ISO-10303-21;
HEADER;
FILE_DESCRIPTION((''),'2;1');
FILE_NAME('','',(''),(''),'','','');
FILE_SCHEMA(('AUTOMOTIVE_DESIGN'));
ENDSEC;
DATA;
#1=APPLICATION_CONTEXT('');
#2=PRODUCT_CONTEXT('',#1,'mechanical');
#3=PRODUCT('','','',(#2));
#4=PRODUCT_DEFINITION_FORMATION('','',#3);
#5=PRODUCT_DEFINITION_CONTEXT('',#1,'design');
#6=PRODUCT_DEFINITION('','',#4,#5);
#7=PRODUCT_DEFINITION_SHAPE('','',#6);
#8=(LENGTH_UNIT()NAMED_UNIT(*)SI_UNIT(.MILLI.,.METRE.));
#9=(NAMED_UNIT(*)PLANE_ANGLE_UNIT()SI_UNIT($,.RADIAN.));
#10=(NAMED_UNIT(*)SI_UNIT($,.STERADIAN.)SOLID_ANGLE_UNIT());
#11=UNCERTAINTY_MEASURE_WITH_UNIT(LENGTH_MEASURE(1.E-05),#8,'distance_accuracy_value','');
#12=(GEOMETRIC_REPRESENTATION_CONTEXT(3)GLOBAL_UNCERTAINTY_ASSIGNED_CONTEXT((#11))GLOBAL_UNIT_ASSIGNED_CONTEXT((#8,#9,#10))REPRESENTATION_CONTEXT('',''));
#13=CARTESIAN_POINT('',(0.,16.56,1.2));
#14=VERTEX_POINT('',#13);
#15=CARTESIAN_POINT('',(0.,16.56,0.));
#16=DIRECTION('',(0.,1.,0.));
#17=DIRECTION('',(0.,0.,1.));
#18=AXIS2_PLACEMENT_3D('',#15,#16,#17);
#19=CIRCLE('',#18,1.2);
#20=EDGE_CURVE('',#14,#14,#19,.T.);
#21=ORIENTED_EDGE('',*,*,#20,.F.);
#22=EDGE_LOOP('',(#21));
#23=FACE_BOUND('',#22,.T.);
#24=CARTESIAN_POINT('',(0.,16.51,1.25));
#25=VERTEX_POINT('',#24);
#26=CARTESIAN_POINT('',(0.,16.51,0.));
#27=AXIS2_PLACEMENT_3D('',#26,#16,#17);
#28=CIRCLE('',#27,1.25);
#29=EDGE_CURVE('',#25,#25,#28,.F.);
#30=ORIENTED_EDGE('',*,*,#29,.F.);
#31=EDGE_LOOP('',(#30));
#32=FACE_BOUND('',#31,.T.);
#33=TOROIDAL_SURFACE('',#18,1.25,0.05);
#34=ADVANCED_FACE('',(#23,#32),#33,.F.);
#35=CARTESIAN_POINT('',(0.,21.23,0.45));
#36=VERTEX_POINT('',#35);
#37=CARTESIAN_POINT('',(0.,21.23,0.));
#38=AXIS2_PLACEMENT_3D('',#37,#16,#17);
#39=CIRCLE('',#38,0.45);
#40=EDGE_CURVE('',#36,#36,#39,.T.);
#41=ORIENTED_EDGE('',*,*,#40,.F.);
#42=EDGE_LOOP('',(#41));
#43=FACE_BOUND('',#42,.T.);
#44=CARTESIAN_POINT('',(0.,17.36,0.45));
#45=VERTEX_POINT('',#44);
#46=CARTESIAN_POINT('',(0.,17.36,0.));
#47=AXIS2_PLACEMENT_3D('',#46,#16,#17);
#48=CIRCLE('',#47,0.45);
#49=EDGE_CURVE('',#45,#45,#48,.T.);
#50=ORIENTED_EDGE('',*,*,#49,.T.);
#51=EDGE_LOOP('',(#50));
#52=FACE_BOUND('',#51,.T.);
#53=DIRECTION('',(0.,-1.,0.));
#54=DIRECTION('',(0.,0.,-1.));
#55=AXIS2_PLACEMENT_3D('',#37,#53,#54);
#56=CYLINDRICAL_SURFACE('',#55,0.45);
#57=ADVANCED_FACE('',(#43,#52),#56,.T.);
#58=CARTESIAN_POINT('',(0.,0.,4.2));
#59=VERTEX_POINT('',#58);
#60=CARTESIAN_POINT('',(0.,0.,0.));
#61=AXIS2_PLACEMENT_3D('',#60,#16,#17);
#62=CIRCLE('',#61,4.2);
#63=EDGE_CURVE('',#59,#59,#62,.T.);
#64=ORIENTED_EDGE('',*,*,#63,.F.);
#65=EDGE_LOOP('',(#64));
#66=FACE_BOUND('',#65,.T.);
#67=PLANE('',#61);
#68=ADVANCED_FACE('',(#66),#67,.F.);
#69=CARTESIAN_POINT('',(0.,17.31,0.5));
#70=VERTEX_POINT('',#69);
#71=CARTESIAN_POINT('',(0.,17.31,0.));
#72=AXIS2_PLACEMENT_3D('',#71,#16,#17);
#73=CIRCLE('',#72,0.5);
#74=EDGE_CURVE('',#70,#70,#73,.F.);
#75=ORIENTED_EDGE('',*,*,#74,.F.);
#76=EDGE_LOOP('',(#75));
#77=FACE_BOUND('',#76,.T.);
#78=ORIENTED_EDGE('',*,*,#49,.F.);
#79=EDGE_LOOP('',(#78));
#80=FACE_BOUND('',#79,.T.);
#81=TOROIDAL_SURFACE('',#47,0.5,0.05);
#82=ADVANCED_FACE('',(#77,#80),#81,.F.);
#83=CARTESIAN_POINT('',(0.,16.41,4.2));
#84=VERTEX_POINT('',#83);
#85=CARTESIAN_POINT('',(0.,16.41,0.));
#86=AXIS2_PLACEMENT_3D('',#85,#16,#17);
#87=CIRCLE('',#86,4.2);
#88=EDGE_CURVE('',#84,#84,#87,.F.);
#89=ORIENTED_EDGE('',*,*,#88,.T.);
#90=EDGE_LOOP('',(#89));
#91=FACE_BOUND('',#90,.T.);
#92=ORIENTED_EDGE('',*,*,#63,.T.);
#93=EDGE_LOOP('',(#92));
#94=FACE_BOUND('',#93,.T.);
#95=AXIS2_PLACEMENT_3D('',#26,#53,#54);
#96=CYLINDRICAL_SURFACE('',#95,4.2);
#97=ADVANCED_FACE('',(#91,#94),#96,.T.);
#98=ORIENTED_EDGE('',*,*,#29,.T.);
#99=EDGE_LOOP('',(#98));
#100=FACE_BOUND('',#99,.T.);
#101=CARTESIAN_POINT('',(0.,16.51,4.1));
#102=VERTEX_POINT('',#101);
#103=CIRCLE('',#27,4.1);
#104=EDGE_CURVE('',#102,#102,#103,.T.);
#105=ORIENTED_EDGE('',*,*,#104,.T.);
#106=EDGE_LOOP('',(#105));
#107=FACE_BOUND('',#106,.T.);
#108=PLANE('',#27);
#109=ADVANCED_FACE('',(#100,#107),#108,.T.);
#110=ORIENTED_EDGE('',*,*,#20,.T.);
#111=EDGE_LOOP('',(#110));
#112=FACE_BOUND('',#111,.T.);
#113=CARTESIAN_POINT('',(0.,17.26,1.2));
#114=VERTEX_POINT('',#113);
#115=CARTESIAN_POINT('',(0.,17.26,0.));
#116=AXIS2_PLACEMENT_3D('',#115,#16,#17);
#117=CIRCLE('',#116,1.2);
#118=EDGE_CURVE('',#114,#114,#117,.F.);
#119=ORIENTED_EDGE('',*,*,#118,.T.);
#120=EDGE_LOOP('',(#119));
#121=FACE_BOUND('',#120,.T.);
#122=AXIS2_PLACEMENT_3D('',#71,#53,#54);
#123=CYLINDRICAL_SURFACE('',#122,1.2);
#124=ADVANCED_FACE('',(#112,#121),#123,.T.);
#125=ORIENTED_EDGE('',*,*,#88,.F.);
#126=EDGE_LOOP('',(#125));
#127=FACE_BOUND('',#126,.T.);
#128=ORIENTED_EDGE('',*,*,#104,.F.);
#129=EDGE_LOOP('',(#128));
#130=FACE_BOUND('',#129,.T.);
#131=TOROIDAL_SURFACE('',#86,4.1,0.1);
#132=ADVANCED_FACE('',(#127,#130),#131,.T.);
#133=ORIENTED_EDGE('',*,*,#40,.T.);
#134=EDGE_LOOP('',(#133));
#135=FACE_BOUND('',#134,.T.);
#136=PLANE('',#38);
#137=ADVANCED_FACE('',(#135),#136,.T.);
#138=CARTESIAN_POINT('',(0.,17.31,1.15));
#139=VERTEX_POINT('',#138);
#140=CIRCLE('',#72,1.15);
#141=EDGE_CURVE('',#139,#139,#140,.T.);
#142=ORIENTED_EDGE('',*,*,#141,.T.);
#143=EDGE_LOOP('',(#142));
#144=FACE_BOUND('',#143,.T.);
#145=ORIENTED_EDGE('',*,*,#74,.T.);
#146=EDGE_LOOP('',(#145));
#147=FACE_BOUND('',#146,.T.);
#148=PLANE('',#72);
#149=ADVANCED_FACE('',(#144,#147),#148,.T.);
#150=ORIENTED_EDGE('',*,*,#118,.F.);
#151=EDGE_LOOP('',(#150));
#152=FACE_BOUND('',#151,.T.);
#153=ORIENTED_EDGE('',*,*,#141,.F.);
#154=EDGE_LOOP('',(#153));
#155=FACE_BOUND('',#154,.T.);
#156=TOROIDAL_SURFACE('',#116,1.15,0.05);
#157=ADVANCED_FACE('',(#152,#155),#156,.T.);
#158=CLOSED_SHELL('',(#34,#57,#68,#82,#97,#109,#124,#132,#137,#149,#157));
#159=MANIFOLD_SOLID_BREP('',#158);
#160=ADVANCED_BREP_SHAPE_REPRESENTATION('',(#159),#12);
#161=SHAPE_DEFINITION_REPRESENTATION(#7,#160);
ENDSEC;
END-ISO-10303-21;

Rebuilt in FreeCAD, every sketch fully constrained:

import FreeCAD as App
import Part
import Sketcher
Q = App.Units.Quantity


def edges_at(feature, points):
    """Names of the edges that pass closest to the given points."""
    edges = feature.Shape.Edges
    near = lambda p: min(range(len(edges)), key=lambda i: edges[i].distToShape(Part.Vertex(*p))[0])
    return sorted({f"Edge{near(p) + 1}" for p in points})

doc = App.newDocument("Part")
params = doc.addObject("Spreadsheet::Sheet", "Params")
for row, (alias, value) in enumerate([
    ("sketch1_diameter", "8.4 mm"),
    ("pad1_length", "16.51 mm"),
    ("sketch2_diameter", "2.4 mm"),
    ("pad2_length", "0.8 mm"),
    ("sketch3_diameter", "0.9 mm"),
    ("pad3_length", "3.92 mm"),
    ("fillet_radius", "0.05 mm"),
    ("fillet2_radius", "0.1 mm"),
], start=1):
    params.set(f"A{row}", alias)
    params.set(f"B{row}", "=" + value)
    params.setAlias(f"B{row}", alias)

body = doc.addObject("PartDesign::Body", "Body")

# Sketch on XZ plane
sketch1 = body.newObject("Sketcher::SketchObject", "Sketch")
sketch1.AttachmentSupport = (doc.getObject("XZ_Plane"), [""])
sketch1.MapMode = "FlatFace"
sketch1.addGeometry(Part.Circle(App.Vector(0, 0, 0), App.Vector(0, 0, 1), 4.2), False)
sketch1.addConstraint([
    Sketcher.Constraint("Coincident", 0, 3, -1, 1),
    Sketcher.Constraint("Diameter", 0, Q("8.4 mm")),
])
sketch1.setExpression("Constraints[1]", "Params.sketch1_diameter")
pad1 = body.newObject("PartDesign::Pad", "Pad")
pad1.Profile = sketch1
pad1.setExpression("Length", "Params.pad1_length")
pad1.Reversed = True

# Sketch on XZ plane
sketch2 = body.newObject("Sketcher::SketchObject", "Sketch001")
sketch2.AttachmentSupport = (doc.getObject("XZ_Plane"), [""])
sketch2.MapMode = "FlatFace"
sketch2.AttachmentOffset = App.Placement(App.Vector(0, 0, -16.51), App.Rotation())
sketch2.addGeometry(Part.Circle(App.Vector(0, 0, 0), App.Vector(0, 0, 1), 1.2), False)
sketch2.addConstraint([
    Sketcher.Constraint("Coincident", 0, 3, -1, 1),
    Sketcher.Constraint("Diameter", 0, Q("2.4 mm")),
])
sketch2.setExpression("Constraints[1]", "Params.sketch2_diameter")
pad2 = body.newObject("PartDesign::Pad", "Pad001")
pad2.Profile = sketch2
pad2.setExpression("Length", "Params.pad2_length")
pad2.Reversed = True

# Sketch on XZ plane
sketch3 = body.newObject("Sketcher::SketchObject", "Sketch002")
sketch3.AttachmentSupport = (doc.getObject("XZ_Plane"), [""])
sketch3.MapMode = "FlatFace"
sketch3.AttachmentOffset = App.Placement(App.Vector(0, 0, -17.31), App.Rotation())
sketch3.addGeometry(Part.Circle(App.Vector(0, 0, 0), App.Vector(0, 0, 1), 0.45), False)
sketch3.addConstraint([
    Sketcher.Constraint("Coincident", 0, 3, -1, 1),
    Sketcher.Constraint("Diameter", 0, Q("0.9 mm")),
])
sketch3.setExpression("Constraints[1]", "Params.sketch3_diameter")
pad3 = body.newObject("PartDesign::Pad", "Pad002")
pad3.Profile = sketch3
pad3.setExpression("Length", "Params.pad3_length")
pad3.Reversed = True
doc.recompute()

fillet = body.newObject("PartDesign::Fillet", "Fillet")
fillet.Base = (pad3, edges_at(pad3, [(-0.45, 17.31, 0), (-1.2, 16.51, 0), (-1.2, 17.31, 0)]))
fillet.setExpression("Radius", "Params.fillet_radius")
doc.recompute()

fillet2 = body.newObject("PartDesign::Fillet", "Fillet001")
fillet2.Base = (fillet, edges_at(fillet, [(-4.2, 16.51, 0)]))
fillet2.setExpression("Radius", "Params.fillet2_radius")

doc.recompute()
